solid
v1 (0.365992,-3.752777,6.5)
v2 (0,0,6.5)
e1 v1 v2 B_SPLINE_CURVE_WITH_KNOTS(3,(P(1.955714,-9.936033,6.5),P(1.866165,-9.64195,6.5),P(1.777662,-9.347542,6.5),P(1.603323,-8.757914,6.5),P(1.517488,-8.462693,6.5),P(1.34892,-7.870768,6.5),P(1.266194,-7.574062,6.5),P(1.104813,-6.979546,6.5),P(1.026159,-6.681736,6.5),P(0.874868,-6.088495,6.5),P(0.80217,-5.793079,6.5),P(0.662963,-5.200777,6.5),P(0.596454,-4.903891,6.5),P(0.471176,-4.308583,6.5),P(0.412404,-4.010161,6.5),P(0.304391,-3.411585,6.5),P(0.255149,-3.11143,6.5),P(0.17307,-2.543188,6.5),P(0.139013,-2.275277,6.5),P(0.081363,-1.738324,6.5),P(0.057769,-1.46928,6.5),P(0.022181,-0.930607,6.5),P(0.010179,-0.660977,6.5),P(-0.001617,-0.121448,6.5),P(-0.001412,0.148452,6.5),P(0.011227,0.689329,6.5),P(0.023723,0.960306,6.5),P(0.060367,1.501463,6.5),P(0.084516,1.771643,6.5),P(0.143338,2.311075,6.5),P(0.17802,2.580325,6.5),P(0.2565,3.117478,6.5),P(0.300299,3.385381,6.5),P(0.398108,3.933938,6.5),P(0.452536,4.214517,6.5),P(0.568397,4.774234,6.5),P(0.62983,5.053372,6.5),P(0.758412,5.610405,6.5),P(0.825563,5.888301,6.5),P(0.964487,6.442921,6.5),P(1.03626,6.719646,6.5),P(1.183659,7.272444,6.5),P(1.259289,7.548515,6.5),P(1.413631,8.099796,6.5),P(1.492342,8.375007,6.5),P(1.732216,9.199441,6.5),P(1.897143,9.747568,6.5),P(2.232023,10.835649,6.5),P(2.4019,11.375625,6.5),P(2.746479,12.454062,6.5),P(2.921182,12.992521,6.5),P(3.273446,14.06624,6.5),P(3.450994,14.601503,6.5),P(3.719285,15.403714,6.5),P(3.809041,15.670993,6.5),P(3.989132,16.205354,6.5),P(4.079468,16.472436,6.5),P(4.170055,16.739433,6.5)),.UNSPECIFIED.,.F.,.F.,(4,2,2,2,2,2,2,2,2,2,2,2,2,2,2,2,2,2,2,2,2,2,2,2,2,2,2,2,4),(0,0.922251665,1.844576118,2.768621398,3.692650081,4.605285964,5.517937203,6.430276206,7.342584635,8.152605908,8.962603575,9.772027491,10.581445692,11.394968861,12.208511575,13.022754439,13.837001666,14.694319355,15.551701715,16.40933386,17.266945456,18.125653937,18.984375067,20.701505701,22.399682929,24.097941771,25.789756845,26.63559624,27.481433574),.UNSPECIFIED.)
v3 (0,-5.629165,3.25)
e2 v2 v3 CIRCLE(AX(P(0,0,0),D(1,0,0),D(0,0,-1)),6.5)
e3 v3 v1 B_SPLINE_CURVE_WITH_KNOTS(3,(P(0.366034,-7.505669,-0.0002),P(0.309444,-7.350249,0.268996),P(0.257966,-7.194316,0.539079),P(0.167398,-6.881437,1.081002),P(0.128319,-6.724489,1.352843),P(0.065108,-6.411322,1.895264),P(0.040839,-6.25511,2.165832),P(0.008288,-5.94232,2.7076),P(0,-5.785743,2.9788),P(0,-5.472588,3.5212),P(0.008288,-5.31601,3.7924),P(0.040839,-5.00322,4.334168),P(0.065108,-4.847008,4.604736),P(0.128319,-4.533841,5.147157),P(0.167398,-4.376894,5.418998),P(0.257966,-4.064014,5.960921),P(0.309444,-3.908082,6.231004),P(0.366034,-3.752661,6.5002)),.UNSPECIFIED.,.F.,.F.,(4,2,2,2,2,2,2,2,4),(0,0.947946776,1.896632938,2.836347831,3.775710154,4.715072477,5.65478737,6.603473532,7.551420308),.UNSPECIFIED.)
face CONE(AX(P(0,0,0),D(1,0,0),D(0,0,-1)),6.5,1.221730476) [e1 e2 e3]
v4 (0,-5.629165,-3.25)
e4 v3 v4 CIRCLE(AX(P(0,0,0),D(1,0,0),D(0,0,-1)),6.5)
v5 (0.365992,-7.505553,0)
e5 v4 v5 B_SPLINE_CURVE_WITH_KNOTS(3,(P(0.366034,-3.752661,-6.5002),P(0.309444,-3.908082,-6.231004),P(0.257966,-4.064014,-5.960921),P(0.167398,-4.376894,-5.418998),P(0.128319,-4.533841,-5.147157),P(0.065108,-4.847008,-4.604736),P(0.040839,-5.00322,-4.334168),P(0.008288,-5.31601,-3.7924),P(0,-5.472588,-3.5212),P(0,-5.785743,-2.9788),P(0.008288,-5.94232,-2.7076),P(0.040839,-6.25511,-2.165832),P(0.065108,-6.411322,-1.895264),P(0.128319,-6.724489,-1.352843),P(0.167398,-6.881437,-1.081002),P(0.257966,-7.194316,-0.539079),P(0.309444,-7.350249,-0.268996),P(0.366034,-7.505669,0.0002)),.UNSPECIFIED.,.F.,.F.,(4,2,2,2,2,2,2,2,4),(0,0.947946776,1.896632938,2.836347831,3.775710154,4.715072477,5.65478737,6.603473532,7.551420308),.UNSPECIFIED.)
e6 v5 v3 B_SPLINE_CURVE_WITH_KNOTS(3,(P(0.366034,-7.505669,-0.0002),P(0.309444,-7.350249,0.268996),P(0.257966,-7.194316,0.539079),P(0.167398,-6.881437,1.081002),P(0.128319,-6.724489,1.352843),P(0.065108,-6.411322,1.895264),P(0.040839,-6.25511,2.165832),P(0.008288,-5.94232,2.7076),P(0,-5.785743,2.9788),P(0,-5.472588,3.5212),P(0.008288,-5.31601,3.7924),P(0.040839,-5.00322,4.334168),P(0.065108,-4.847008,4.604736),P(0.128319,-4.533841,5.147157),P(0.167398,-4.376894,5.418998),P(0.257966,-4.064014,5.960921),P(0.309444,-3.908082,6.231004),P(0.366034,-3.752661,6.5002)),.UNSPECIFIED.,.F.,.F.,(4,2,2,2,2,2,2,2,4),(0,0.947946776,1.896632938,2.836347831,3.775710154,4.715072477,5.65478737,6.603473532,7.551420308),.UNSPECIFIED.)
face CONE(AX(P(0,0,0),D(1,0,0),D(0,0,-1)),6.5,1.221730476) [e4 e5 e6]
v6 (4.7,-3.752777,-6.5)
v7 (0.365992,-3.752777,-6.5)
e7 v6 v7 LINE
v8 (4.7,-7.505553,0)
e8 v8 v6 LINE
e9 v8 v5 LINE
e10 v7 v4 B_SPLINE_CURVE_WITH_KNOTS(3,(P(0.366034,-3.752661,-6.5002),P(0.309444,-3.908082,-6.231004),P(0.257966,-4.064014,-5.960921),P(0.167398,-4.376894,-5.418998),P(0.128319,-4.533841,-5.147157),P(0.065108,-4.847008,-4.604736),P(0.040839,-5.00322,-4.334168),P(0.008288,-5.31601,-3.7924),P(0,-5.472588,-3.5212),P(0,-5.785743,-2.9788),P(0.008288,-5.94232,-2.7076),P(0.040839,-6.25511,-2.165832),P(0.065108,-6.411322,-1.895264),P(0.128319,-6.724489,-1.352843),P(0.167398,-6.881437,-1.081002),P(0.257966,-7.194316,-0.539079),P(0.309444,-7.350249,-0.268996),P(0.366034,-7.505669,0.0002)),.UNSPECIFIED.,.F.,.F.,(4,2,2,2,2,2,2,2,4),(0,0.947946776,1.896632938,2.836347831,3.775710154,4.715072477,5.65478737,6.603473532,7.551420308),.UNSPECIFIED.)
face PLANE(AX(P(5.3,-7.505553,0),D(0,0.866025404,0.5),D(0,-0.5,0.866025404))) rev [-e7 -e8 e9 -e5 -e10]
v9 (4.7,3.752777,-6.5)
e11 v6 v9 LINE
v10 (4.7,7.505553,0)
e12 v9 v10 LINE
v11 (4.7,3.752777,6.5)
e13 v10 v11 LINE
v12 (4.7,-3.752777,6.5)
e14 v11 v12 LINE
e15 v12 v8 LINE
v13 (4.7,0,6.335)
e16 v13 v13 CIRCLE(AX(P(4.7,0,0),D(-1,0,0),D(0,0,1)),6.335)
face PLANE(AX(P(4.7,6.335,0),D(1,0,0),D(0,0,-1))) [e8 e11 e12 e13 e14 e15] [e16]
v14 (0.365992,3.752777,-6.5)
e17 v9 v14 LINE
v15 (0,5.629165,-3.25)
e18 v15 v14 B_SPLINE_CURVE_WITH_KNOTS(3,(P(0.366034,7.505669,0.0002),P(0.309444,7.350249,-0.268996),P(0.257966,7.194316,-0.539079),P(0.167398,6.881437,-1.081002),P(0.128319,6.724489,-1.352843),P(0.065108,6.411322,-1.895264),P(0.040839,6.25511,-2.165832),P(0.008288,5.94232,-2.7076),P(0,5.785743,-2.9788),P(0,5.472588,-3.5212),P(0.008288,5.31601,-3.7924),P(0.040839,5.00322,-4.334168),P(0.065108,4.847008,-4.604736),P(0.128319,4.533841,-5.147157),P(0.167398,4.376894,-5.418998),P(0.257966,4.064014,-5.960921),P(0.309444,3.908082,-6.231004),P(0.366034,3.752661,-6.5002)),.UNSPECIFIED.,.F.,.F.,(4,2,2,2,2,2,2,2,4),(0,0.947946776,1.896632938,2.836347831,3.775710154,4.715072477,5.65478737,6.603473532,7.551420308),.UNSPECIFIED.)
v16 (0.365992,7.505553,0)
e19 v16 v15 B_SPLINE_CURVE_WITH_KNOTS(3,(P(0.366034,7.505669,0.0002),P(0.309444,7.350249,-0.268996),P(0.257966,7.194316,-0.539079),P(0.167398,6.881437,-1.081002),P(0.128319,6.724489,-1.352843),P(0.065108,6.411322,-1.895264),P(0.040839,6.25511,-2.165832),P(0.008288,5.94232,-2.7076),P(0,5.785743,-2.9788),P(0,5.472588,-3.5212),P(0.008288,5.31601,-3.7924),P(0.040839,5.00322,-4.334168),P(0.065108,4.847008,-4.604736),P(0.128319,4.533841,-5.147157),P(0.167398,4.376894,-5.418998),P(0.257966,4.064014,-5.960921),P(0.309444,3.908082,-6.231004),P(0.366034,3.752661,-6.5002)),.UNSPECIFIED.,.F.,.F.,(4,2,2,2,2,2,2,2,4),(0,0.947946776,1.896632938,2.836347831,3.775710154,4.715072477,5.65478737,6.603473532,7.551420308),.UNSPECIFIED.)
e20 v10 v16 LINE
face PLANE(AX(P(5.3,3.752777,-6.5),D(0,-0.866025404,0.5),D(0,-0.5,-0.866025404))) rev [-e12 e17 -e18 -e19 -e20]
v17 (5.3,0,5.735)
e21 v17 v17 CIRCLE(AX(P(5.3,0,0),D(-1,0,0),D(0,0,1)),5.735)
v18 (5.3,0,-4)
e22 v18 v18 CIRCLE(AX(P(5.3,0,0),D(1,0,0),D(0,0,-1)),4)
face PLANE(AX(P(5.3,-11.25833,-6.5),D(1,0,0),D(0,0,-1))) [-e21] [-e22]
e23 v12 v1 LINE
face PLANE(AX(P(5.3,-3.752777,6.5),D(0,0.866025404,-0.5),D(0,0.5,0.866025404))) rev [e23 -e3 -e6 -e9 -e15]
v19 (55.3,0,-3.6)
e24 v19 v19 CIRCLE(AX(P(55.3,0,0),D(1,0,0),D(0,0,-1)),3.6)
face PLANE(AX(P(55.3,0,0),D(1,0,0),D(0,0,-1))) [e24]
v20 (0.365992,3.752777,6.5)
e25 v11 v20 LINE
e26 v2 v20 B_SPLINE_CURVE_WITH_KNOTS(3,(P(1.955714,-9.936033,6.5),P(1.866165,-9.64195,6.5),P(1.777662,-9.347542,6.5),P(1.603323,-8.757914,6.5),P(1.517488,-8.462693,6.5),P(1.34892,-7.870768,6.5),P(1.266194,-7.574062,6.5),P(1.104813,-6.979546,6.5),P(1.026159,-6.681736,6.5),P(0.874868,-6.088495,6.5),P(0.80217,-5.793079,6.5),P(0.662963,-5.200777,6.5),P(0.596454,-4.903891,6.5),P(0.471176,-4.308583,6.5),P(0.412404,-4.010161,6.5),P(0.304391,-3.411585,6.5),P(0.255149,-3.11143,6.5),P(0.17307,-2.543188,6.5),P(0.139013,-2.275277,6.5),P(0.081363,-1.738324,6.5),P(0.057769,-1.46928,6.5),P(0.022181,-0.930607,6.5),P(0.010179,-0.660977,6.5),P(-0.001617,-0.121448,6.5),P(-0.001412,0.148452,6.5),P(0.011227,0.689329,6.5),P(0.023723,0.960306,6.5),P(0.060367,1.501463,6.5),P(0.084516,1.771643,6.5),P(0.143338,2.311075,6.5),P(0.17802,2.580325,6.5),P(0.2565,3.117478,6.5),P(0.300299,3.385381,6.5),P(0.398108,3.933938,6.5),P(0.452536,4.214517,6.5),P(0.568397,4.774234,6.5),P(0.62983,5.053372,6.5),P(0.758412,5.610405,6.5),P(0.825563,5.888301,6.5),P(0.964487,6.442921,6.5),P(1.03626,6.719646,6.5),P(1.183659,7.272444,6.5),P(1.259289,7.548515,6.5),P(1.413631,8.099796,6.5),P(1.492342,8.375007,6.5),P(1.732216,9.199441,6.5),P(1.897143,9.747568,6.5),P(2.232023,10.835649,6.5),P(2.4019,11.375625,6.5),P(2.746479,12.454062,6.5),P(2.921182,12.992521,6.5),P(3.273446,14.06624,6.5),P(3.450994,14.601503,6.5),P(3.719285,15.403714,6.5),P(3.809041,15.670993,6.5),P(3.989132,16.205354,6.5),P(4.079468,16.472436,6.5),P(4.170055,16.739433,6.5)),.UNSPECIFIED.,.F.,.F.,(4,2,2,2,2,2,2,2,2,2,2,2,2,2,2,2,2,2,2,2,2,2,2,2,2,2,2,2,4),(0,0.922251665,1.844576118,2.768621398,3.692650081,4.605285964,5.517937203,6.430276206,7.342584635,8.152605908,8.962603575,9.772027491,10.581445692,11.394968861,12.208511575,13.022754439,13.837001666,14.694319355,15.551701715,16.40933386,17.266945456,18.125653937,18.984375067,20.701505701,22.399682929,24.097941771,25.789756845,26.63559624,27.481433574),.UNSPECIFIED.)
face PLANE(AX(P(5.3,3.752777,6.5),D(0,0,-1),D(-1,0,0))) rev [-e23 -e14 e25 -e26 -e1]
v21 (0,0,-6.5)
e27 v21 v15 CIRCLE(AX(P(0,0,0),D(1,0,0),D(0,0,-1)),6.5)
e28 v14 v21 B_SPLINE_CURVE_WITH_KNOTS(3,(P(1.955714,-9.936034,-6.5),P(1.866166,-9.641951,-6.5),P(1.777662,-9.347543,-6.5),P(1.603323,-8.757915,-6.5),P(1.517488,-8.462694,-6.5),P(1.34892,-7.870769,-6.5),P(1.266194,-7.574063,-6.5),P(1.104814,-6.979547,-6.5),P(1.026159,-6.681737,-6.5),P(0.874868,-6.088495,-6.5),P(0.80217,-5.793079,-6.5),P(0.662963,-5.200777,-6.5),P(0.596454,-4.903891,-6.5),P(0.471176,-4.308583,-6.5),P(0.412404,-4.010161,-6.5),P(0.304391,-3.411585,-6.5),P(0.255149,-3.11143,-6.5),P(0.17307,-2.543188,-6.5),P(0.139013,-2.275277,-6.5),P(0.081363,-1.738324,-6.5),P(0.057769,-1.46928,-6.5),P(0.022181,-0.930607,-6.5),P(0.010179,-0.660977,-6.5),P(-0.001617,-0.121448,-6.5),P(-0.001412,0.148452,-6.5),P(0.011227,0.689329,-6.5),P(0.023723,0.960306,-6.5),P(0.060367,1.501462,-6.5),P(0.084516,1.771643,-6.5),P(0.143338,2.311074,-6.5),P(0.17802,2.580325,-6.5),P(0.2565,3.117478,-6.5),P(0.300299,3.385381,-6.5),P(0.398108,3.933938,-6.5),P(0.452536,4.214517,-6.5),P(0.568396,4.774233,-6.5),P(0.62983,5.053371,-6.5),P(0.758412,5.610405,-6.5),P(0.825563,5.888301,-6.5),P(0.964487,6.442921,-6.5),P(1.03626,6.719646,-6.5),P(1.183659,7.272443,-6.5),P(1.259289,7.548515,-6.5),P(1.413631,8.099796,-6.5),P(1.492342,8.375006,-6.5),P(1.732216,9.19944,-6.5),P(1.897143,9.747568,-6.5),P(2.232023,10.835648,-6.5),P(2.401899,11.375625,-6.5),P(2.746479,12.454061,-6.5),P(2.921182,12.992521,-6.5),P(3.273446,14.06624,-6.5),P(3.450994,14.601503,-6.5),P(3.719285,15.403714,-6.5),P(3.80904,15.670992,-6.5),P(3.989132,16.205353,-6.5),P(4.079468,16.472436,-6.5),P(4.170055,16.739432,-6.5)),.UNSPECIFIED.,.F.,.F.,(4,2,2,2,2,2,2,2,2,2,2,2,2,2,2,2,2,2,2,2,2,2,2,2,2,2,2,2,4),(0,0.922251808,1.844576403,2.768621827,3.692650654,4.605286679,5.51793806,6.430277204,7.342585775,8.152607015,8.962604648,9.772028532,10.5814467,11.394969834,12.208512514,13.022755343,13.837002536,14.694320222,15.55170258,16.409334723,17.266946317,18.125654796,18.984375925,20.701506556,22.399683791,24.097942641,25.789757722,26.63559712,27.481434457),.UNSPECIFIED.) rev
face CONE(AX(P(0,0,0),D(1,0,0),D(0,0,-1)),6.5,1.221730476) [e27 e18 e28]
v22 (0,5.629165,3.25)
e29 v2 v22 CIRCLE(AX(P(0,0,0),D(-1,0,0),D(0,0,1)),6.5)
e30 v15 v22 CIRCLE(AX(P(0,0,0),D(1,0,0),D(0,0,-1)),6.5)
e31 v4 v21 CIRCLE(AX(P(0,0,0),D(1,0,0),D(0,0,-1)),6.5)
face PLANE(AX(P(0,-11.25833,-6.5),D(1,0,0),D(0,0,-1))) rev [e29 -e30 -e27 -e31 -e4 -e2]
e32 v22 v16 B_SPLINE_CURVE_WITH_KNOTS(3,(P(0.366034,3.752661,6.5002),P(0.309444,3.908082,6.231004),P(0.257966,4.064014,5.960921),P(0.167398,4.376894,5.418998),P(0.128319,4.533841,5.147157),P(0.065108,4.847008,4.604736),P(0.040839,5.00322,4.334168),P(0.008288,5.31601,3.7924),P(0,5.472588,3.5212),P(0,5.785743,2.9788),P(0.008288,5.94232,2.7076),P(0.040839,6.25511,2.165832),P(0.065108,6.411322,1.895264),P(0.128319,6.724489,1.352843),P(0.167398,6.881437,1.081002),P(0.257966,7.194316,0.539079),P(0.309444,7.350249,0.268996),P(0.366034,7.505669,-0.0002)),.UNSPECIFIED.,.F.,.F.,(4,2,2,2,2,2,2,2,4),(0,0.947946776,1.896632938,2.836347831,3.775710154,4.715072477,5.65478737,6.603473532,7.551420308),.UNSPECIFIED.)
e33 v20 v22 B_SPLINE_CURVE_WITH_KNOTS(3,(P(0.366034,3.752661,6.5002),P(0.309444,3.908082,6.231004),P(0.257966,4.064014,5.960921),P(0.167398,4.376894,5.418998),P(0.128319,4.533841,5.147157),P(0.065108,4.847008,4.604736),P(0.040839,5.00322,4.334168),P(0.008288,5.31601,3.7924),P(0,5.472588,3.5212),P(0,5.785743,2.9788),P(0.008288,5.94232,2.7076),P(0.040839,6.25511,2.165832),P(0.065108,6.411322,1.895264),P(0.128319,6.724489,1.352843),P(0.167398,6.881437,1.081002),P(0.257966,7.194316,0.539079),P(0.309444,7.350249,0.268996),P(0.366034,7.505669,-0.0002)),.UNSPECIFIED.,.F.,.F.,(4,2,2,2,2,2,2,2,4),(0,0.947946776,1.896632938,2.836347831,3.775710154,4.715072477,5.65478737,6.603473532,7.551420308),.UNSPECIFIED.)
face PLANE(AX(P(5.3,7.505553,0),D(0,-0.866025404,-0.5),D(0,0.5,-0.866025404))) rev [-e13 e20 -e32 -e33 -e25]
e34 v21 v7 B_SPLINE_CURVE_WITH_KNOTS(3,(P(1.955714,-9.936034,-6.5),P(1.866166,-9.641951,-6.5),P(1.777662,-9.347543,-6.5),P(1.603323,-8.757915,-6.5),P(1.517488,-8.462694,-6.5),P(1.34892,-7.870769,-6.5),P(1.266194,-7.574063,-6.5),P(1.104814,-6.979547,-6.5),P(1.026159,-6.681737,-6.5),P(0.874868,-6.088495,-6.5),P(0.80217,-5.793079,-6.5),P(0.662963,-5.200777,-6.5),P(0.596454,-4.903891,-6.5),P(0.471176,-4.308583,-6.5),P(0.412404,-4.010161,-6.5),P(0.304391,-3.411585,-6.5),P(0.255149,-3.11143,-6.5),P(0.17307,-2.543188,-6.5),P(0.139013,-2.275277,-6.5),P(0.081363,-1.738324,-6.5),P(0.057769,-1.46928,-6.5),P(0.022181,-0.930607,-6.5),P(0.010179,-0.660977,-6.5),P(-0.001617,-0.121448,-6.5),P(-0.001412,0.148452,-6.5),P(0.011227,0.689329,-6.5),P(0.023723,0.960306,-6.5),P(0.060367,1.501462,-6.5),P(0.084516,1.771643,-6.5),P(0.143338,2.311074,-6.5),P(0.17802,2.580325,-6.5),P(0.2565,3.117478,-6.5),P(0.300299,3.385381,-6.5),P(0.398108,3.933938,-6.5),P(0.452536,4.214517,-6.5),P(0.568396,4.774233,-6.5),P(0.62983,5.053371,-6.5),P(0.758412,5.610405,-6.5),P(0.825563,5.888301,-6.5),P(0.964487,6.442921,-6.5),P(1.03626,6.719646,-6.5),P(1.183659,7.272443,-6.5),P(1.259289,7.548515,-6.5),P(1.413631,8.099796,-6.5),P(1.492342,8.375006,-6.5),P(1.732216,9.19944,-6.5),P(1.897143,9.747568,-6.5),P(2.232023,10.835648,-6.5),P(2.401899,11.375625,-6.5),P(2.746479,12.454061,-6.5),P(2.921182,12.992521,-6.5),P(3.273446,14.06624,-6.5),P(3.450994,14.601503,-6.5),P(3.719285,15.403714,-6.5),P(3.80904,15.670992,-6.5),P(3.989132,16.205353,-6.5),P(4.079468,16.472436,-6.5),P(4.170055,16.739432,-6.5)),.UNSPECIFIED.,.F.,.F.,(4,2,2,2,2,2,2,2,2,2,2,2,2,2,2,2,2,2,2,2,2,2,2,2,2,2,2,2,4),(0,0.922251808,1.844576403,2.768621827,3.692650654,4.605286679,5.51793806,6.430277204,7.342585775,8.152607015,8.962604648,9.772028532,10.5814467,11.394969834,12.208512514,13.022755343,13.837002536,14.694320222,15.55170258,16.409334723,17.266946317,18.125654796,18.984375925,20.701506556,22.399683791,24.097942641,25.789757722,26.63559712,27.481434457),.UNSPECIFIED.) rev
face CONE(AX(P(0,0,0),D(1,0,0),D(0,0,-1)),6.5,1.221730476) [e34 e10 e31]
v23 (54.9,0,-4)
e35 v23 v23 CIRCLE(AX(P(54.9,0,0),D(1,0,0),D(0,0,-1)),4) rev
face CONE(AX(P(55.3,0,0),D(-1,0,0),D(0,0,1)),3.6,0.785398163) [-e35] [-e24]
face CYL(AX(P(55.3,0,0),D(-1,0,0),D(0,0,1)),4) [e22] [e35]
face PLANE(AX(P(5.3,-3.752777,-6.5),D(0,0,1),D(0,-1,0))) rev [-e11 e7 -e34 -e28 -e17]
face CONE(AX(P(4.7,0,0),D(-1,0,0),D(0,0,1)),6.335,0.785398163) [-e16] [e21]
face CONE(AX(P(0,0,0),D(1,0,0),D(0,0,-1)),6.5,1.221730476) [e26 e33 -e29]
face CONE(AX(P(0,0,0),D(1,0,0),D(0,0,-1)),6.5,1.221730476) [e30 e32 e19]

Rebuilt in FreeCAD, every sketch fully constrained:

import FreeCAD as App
import Part
import Sketcher
Q = App.Units.Quantity


def edges_at(feature, points):
    """Names of the edges that pass closest to the given points."""
    edges = feature.Shape.Edges
    near = lambda p: min(range(len(edges)), key=lambda i: edges[i].distToShape(Part.Vertex(*p))[0])
    return sorted({f"Edge{near(p) + 1}" for p in points})


def add_polygon(sketch, points):
    """Adds a closed chain of lines whose ends are joined by coincident constraints."""
    first, n = sketch.GeometryCount, len(points)
    for a, b in zip(points, points[1:] + points[:1]):
        sketch.addGeometry(Part.LineSegment(App.Vector(*a, 0), App.Vector(*b, 0)), False)
    for i in range(n):
        sketch.addConstraint(Sketcher.Constraint("Coincident", first + i, 2, first + (i + 1) % n, 1))

doc = App.newDocument("Part")
body = doc.addObject("PartDesign::Body", "Body")

# Sketch on YZ plane
sketch1 = body.newObject("Sketcher::SketchObject", "Sketch")
sketch1.AttachmentSupport = (doc.getObject("YZ_Plane"), [""])
sketch1.MapMode = "FlatFace"
add_polygon(sketch1, [(-7.505553, 0), (-3.752777, -6.5), (3.752777, -6.5), (7.505553, 0), (3.752777, 6.5), (-3.752777, 6.5)])  # lines 0-5
sketch1.addConstraint([
    Sketcher.Constraint("Horizontal", 1),
    Sketcher.Constraint("Horizontal", 4),
    Sketcher.Constraint("Symmetric", 0, 2, 3, 2, -1, 1),
    Sketcher.Constraint("Symmetric", 2, 2, 5, 2, -1, 1),
    Sketcher.Constraint("PointOnObject", 2, 2, -1),
    Sketcher.Constraint("Parallel", 2, 5),
    Sketcher.Constraint("Vertical", 1, 2, 3, 2),
    Sketcher.Constraint("Angle", 0, Q("-60 deg")),
    Sketcher.Constraint("DistanceY", 1, 2, 3, 2, 13.0),
    Sketcher.Constraint("DistanceX", 1, 1, 1, 2, 7.505554),
])
pad1 = body.newObject("PartDesign::Pad", "Pad")
pad1.Profile = sketch1
pad1.Length = 5.3

# Sketch on XY plane
sketch2 = body.newObject("Sketcher::SketchObject", "Sketch001")
sketch2.AttachmentSupport = (doc.getObject("XY_Plane"), [""])
sketch2.MapMode = "FlatFace"
add_polygon(sketch2, [(5.3, 5.735), (5.3, 7.505553), (4.7, 7.505553), (4.7, 6.335)])  # lines 0-3
sketch2.addConstraint([
    Sketcher.Constraint("Vertical", 0),
    Sketcher.Constraint("Horizontal", 1),
    Sketcher.Constraint("Vertical", 2),
    Sketcher.Constraint("Angle", 3, Q("-45 deg")),
    Sketcher.Constraint("DistanceX", 1, 2, 1, 1, 0.6),
    Sketcher.Constraint("DistanceX", -1, 1, 0, 2, 5.3),
    Sketcher.Constraint("DistanceY", -1, 1, 2, 2, 6.335),
    Sketcher.Constraint("DistanceY", 0, 1, 0, 2, 1.770553),
])
groove = body.newObject("PartDesign::Groove", "Groove")
groove.Profile = sketch2
groove.ReferenceAxis = (sketch2, ["H_Axis"])
groove.Angle = 360

# Sketch on XY plane
sketch3 = body.newObject("Sketcher::SketchObject", "Sketch002")
sketch3.AttachmentSupport = (doc.getObject("XY_Plane"), [""])
sketch3.MapMode = "FlatFace"
add_polygon(sketch3, [(0.365992, 7.505553), (0, 7.505553), (0, 6.5)])  # lines 0-2
sketch3.addConstraint([
    Sketcher.Constraint("Horizontal", 0),
    Sketcher.Constraint("Vertical", 1),
    Sketcher.Constraint("PointOnObject", 0, 2, -2),
    Sketcher.Constraint("Angle", 2, Q("70 deg")),
    Sketcher.Constraint("DistanceY", -1, 1, 1, 2, 6.5),
    Sketcher.Constraint("DistanceX", 0, 2, 0, 1, 0.365992),
])
groove2 = body.newObject("PartDesign::Groove", "Groove001")
groove2.Profile = sketch3
groove2.ReferenceAxis = (sketch3, ["H_Axis"])
groove2.Angle = 360

# Sketch on YZ plane
sketch4 = body.newObject("Sketcher::SketchObject", "Sketch003")
sketch4.AttachmentSupport = (doc.getObject("YZ_Plane"), [""])
sketch4.MapMode = "FlatFace"
sketch4.AttachmentOffset = App.Placement(App.Vector(0, 0, 5.3), App.Rotation())
sketch4.addGeometry(Part.Circle(App.Vector(0, 0, 0), App.Vector(0, 0, 1), 4), False)
sketch4.addConstraint([
    Sketcher.Constraint("Coincident", 0, 3, -1, 1),
    Sketcher.Constraint("Diameter", 0, 8.0),
])
pad2 = body.newObject("PartDesign::Pad", "Pad001")
pad2.Profile = sketch4
pad2.Length = 50
doc.recompute()

chamfer = body.newObject("PartDesign::Chamfer", "Chamfer")
chamfer.Base = (pad2, edges_at(pad2, [(55.3, 0, 4)]))
chamfer.Size = 0.4

doc.recompute()
